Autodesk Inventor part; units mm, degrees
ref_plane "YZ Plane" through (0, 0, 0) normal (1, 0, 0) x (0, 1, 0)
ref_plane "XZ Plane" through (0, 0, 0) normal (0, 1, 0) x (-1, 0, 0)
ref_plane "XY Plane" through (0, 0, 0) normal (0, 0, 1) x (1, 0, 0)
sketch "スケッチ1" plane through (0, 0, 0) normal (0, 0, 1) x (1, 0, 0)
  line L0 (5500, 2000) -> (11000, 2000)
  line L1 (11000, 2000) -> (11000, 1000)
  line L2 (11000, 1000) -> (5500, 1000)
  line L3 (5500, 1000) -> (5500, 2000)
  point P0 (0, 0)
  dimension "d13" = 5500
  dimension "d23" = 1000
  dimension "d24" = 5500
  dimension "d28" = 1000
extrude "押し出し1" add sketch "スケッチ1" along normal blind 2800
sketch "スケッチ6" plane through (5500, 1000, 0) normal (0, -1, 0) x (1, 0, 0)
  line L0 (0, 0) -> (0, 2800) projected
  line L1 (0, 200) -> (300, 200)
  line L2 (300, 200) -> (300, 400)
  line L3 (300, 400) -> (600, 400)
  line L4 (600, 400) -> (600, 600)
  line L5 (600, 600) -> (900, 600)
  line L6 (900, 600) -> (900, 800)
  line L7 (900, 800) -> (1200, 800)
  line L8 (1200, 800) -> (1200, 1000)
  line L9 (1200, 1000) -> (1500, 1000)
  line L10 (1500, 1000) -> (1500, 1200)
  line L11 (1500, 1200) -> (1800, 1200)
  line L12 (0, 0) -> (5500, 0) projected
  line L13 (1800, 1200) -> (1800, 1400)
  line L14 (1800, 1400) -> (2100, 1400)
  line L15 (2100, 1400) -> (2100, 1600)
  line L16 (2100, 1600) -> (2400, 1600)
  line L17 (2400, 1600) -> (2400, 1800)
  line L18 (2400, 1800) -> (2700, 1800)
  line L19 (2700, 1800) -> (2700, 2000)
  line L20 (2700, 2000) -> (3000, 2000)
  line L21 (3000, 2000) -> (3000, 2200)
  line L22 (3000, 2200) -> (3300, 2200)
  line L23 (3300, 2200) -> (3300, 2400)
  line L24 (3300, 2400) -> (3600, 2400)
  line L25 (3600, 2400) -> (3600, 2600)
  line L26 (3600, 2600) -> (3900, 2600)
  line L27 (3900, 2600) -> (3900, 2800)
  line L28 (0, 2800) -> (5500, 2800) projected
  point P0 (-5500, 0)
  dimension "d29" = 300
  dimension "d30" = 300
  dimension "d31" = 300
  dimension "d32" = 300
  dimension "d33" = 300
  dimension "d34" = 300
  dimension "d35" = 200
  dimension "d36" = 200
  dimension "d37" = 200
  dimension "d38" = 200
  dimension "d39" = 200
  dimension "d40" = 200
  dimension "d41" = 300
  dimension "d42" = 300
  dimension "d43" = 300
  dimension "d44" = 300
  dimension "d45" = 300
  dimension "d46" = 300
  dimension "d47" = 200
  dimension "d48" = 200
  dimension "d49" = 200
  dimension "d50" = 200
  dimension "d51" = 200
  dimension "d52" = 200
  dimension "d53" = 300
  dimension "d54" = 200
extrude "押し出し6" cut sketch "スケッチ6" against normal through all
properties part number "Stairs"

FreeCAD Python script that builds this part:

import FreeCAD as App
import Part
import Sketcher
Q = App.Units.Quantity

doc = App.newDocument("Part")
body = doc.addObject("PartDesign::Body", "Body")

# Sketch on XY plane
sketch1 = body.newObject("Sketcher::SketchObject", "Sketch")
sketch1.AttachmentSupport = (doc.getObject("XY_Plane"), [""])
sketch1.MapMode = "FlatFace"
sketch1.addGeometry([
    Part.LineSegment(App.Vector(11000, 2000, 0), App.Vector(5500, 2000, 0)),
    Part.LineSegment(App.Vector(5500, 2000, 0), App.Vector(5500, 1000, 0)),
    Part.LineSegment(App.Vector(5500, 1000, 0), App.Vector(11000, 1000, 0)),
    Part.LineSegment(App.Vector(11000, 1000, 0), App.Vector(11000, 2000, 0)),
], False)
sketch1.addConstraint([
    Sketcher.Constraint("Coincident", 0, 2, 1, 1),
    Sketcher.Constraint("Coincident", 1, 2, 2, 1),
    Sketcher.Constraint("Coincident", 2, 2, 3, 1),
    Sketcher.Constraint("Coincident", 3, 2, 0, 1),
    Sketcher.Constraint("Horizontal", 0),
    Sketcher.Constraint("Vertical", 1),
    Sketcher.Constraint("Horizontal", 2),
    Sketcher.Constraint("Vertical", 3),
    Sketcher.Constraint("DistanceX", 0, 2, 0, 1, Q("5500 mm")),
    Sketcher.Constraint("DistanceY", 1, 2, 1, 1, Q("1000 mm")),
    Sketcher.Constraint("DistanceX", -1, 1, 0, 2, Q("5500 mm")),
    Sketcher.Constraint("DistanceY", -1, 1, 1, 2, Q("1000 mm")),
])
pad1 = body.newObject("PartDesign::Pad", "Pad")
pad1.Profile = sketch1
pad1.Length = 2800

# Sketch on XZ plane
sketch2 = body.newObject("Sketcher::SketchObject", "Sketch001")
sketch2.AttachmentSupport = (doc.getObject("XZ_Plane"), [""])
sketch2.MapMode = "FlatFace"
sketch2.AttachmentOffset = App.Placement(App.Vector(0, 0, -1000), App.Rotation())
sketch2.addGeometry([
    Part.LineSegment(App.Vector(5500, 2800, 0), App.Vector(5500, 200, 0)),  # 0
    Part.LineSegment(App.Vector(5500, 200, 0), App.Vector(5800, 200, 0)),  # 1
    Part.LineSegment(App.Vector(5800, 200, 0), App.Vector(5800, 400, 0)),  # 2
    Part.LineSegment(App.Vector(5800, 400, 0), App.Vector(6100, 400, 0)),  # 3
    Part.LineSegment(App.Vector(6100, 400, 0), App.Vector(6100, 600, 0)),  # 4
    Part.LineSegment(App.Vector(6100, 600, 0), App.Vector(6400, 600, 0)),  # 5
    Part.LineSegment(App.Vector(6400, 600, 0), App.Vector(6400, 800, 0)),  # 6
    Part.LineSegment(App.Vector(6400, 800, 0), App.Vector(6700, 800, 0)),  # 7
    Part.LineSegment(App.Vector(6700, 800, 0), App.Vector(6700, 1000, 0)),  # 8
    Part.LineSegment(App.Vector(6700, 1000, 0), App.Vector(7000, 1000, 0)),  # 9
    Part.LineSegment(App.Vector(7000, 1000, 0), App.Vector(7000, 1200, 0)),  # 10
    Part.LineSegment(App.Vector(7000, 1200, 0), App.Vector(7300, 1200, 0)),  # 11
    Part.LineSegment(App.Vector(7300, 1200, 0), App.Vector(7300, 1400, 0)),  # 12
    Part.LineSegment(App.Vector(7300, 1400, 0), App.Vector(7600, 1400, 0)),  # 13
    Part.LineSegment(App.Vector(7600, 1400, 0), App.Vector(7600, 1600, 0)),  # 14
    Part.LineSegment(App.Vector(7600, 1600, 0), App.Vector(7900, 1600, 0)),  # 15
    Part.LineSegment(App.Vector(7900, 1600, 0), App.Vector(7900, 1800, 0)),  # 16
    Part.LineSegment(App.Vector(7900, 1800, 0), App.Vector(8200, 1800, 0)),  # 17
    Part.LineSegment(App.Vector(8200, 1800, 0), App.Vector(8200, 2000, 0)),  # 18
    Part.LineSegment(App.Vector(8200, 2000, 0), App.Vector(8500, 2000, 0)),  # 19
    Part.LineSegment(App.Vector(8500, 2000, 0), App.Vector(8500, 2200, 0)),  # 20
    Part.LineSegment(App.Vector(8500, 2200, 0), App.Vector(8800, 2200, 0)),  # 21
    Part.LineSegment(App.Vector(8800, 2200, 0), App.Vector(8800, 2400, 0)),  # 22
    Part.LineSegment(App.Vector(8800, 2400, 0), App.Vector(9100, 2400, 0)),  # 23
    Part.LineSegment(App.Vector(9100, 2400, 0), App.Vector(9100, 2600, 0)),  # 24
    Part.LineSegment(App.Vector(9100, 2600, 0), App.Vector(9400, 2600, 0)),  # 25
    Part.LineSegment(App.Vector(9400, 2600, 0), App.Vector(9400, 2800, 0)),  # 26
    Part.LineSegment(App.Vector(9400, 2800, 0), App.Vector(5500, 2800, 0)),  # 27
], False)
sketch2.addConstraint([
    Sketcher.Constraint("Coincident", 0, 2, 1, 1),
    Sketcher.Constraint("Coincident", 1, 2, 2, 1),
    Sketcher.Constraint("Coincident", 2, 2, 3, 1),
    Sketcher.Constraint("Coincident", 3, 2, 4, 1),
    Sketcher.Constraint("Coincident", 4, 2, 5, 1),
    Sketcher.Constraint("Coincident", 5, 2, 6, 1),
    Sketcher.Constraint("Coincident", 6, 2, 7, 1),
    Sketcher.Constraint("Coincident", 7, 2, 8, 1),
    Sketcher.Constraint("Coincident", 8, 2, 9, 1),
    Sketcher.Constraint("Coincident", 9, 2, 10, 1),
    Sketcher.Constraint("Coincident", 10, 2, 11, 1),
    Sketcher.Constraint("Coincident", 11, 2, 12, 1),
    Sketcher.Constraint("Coincident", 12, 2, 13, 1),
    Sketcher.Constraint("Coincident", 13, 2, 14, 1),
    Sketcher.Constraint("Coincident", 14, 2, 15, 1),
    Sketcher.Constraint("Coincident", 15, 2, 16, 1),
    Sketcher.Constraint("Coincident", 16, 2, 17, 1),
    Sketcher.Constraint("Coincident", 17, 2, 18, 1),
    Sketcher.Constraint("Coincident", 18, 2, 19, 1),
    Sketcher.Constraint("Coincident", 19, 2, 20, 1),
    Sketcher.Constraint("Coincident", 20, 2, 21, 1),
    Sketcher.Constraint("Coincident", 21, 2, 22, 1),
    Sketcher.Constraint("Coincident", 22, 2, 23, 1),
    Sketcher.Constraint("Coincident", 23, 2, 24, 1),
    Sketcher.Constraint("Coincident", 24, 2, 25, 1),
    Sketcher.Constraint("Coincident", 25, 2, 26, 1),
    Sketcher.Constraint("Coincident", 26, 2, 27, 1),
    Sketcher.Constraint("Coincident", 27, 2, 0, 1),
    Sketcher.Constraint("Vertical", 0),
    Sketcher.Constraint("Horizontal", 1),
    Sketcher.Constraint("Vertical", 2),
    Sketcher.Constraint("Horizontal", 3),
    Sketcher.Constraint("Vertical", 4),
    Sketcher.Constraint("Horizontal", 5),
    Sketcher.Constraint("Vertical", 6),
    Sketcher.Constraint("Horizontal", 7),
    Sketcher.Constraint("Vertical", 8),
    Sketcher.Constraint("Horizontal", 9),
    Sketcher.Constraint("Vertical", 10),
    Sketcher.Constraint("Horizontal", 11),
    Sketcher.Constraint("Vertical", 12),
    Sketcher.Constraint("Horizontal", 13),
    Sketcher.Constraint("Vertical", 14),
    Sketcher.Constraint("Horizontal", 15),
    Sketcher.Constraint("Vertical", 16),
    Sketcher.Constraint("Horizontal", 17),
    Sketcher.Constraint("Vertical", 18),
    Sketcher.Constraint("Horizontal", 19),
    Sketcher.Constraint("Vertical", 20),
    Sketcher.Constraint("Horizontal", 21),
    Sketcher.Constraint("Vertical", 22),
    Sketcher.Constraint("Horizontal", 23),
    Sketcher.Constraint("Vertical", 24),
    Sketcher.Constraint("Horizontal", 25),
    Sketcher.Constraint("Vertical", 26),
    Sketcher.Constraint("Horizontal", 27),
    Sketcher.Constraint("Equal", 1, 3),
    Sketcher.Constraint("Equal", 3, 5),
    Sketcher.Constraint("Equal", 5, 7),
    Sketcher.Constraint("Equal", 7, 9),
    Sketcher.Constraint("Equal", 9, 11),
    Sketcher.Constraint("Equal", 11, 13),
    Sketcher.Constraint("Equal", 13, 15),
    Sketcher.Constraint("Equal", 15, 17),
    Sketcher.Constraint("Equal", 17, 19),
    Sketcher.Constraint("Equal", 19, 21),
    Sketcher.Constraint("Equal", 21, 23),
    Sketcher.Constraint("Equal", 23, 25),
    Sketcher.Constraint("Equal", 2, 4),
    Sketcher.Constraint("Equal", 4, 6),
    Sketcher.Constraint("Equal", 6, 8),
    Sketcher.Constraint("Equal", 8, 10),
    Sketcher.Constraint("Equal", 10, 12),
    Sketcher.Constraint("Equal", 12, 14),
    Sketcher.Constraint("Equal", 14, 16),
    Sketcher.Constraint("Equal", 16, 18),
    Sketcher.Constraint("Equal", 18, 20),
    Sketcher.Constraint("Equal", 20, 22),
    Sketcher.Constraint("Equal", 22, 24),
    Sketcher.Constraint("Equal", 24, 26),
    Sketcher.Constraint("DistanceX", 1, 1, 1, 2, Q("300 mm")),
    Sketcher.Constraint("DistanceY", 2, 1, 2, 2, Q("200 mm")),
    Sketcher.Constraint("DistanceY", -1, 1, 0, 2, Q("200 mm")),
    Sketcher.Constraint("DistanceX", -1, 1, 0, 2, Q("5500 mm")),
])
pocket1 = body.newObject("PartDesign::Pocket", "Pocket")
pocket1.Profile = sketch2
pocket1.Type = "ThroughAll"

doc.recompute()
